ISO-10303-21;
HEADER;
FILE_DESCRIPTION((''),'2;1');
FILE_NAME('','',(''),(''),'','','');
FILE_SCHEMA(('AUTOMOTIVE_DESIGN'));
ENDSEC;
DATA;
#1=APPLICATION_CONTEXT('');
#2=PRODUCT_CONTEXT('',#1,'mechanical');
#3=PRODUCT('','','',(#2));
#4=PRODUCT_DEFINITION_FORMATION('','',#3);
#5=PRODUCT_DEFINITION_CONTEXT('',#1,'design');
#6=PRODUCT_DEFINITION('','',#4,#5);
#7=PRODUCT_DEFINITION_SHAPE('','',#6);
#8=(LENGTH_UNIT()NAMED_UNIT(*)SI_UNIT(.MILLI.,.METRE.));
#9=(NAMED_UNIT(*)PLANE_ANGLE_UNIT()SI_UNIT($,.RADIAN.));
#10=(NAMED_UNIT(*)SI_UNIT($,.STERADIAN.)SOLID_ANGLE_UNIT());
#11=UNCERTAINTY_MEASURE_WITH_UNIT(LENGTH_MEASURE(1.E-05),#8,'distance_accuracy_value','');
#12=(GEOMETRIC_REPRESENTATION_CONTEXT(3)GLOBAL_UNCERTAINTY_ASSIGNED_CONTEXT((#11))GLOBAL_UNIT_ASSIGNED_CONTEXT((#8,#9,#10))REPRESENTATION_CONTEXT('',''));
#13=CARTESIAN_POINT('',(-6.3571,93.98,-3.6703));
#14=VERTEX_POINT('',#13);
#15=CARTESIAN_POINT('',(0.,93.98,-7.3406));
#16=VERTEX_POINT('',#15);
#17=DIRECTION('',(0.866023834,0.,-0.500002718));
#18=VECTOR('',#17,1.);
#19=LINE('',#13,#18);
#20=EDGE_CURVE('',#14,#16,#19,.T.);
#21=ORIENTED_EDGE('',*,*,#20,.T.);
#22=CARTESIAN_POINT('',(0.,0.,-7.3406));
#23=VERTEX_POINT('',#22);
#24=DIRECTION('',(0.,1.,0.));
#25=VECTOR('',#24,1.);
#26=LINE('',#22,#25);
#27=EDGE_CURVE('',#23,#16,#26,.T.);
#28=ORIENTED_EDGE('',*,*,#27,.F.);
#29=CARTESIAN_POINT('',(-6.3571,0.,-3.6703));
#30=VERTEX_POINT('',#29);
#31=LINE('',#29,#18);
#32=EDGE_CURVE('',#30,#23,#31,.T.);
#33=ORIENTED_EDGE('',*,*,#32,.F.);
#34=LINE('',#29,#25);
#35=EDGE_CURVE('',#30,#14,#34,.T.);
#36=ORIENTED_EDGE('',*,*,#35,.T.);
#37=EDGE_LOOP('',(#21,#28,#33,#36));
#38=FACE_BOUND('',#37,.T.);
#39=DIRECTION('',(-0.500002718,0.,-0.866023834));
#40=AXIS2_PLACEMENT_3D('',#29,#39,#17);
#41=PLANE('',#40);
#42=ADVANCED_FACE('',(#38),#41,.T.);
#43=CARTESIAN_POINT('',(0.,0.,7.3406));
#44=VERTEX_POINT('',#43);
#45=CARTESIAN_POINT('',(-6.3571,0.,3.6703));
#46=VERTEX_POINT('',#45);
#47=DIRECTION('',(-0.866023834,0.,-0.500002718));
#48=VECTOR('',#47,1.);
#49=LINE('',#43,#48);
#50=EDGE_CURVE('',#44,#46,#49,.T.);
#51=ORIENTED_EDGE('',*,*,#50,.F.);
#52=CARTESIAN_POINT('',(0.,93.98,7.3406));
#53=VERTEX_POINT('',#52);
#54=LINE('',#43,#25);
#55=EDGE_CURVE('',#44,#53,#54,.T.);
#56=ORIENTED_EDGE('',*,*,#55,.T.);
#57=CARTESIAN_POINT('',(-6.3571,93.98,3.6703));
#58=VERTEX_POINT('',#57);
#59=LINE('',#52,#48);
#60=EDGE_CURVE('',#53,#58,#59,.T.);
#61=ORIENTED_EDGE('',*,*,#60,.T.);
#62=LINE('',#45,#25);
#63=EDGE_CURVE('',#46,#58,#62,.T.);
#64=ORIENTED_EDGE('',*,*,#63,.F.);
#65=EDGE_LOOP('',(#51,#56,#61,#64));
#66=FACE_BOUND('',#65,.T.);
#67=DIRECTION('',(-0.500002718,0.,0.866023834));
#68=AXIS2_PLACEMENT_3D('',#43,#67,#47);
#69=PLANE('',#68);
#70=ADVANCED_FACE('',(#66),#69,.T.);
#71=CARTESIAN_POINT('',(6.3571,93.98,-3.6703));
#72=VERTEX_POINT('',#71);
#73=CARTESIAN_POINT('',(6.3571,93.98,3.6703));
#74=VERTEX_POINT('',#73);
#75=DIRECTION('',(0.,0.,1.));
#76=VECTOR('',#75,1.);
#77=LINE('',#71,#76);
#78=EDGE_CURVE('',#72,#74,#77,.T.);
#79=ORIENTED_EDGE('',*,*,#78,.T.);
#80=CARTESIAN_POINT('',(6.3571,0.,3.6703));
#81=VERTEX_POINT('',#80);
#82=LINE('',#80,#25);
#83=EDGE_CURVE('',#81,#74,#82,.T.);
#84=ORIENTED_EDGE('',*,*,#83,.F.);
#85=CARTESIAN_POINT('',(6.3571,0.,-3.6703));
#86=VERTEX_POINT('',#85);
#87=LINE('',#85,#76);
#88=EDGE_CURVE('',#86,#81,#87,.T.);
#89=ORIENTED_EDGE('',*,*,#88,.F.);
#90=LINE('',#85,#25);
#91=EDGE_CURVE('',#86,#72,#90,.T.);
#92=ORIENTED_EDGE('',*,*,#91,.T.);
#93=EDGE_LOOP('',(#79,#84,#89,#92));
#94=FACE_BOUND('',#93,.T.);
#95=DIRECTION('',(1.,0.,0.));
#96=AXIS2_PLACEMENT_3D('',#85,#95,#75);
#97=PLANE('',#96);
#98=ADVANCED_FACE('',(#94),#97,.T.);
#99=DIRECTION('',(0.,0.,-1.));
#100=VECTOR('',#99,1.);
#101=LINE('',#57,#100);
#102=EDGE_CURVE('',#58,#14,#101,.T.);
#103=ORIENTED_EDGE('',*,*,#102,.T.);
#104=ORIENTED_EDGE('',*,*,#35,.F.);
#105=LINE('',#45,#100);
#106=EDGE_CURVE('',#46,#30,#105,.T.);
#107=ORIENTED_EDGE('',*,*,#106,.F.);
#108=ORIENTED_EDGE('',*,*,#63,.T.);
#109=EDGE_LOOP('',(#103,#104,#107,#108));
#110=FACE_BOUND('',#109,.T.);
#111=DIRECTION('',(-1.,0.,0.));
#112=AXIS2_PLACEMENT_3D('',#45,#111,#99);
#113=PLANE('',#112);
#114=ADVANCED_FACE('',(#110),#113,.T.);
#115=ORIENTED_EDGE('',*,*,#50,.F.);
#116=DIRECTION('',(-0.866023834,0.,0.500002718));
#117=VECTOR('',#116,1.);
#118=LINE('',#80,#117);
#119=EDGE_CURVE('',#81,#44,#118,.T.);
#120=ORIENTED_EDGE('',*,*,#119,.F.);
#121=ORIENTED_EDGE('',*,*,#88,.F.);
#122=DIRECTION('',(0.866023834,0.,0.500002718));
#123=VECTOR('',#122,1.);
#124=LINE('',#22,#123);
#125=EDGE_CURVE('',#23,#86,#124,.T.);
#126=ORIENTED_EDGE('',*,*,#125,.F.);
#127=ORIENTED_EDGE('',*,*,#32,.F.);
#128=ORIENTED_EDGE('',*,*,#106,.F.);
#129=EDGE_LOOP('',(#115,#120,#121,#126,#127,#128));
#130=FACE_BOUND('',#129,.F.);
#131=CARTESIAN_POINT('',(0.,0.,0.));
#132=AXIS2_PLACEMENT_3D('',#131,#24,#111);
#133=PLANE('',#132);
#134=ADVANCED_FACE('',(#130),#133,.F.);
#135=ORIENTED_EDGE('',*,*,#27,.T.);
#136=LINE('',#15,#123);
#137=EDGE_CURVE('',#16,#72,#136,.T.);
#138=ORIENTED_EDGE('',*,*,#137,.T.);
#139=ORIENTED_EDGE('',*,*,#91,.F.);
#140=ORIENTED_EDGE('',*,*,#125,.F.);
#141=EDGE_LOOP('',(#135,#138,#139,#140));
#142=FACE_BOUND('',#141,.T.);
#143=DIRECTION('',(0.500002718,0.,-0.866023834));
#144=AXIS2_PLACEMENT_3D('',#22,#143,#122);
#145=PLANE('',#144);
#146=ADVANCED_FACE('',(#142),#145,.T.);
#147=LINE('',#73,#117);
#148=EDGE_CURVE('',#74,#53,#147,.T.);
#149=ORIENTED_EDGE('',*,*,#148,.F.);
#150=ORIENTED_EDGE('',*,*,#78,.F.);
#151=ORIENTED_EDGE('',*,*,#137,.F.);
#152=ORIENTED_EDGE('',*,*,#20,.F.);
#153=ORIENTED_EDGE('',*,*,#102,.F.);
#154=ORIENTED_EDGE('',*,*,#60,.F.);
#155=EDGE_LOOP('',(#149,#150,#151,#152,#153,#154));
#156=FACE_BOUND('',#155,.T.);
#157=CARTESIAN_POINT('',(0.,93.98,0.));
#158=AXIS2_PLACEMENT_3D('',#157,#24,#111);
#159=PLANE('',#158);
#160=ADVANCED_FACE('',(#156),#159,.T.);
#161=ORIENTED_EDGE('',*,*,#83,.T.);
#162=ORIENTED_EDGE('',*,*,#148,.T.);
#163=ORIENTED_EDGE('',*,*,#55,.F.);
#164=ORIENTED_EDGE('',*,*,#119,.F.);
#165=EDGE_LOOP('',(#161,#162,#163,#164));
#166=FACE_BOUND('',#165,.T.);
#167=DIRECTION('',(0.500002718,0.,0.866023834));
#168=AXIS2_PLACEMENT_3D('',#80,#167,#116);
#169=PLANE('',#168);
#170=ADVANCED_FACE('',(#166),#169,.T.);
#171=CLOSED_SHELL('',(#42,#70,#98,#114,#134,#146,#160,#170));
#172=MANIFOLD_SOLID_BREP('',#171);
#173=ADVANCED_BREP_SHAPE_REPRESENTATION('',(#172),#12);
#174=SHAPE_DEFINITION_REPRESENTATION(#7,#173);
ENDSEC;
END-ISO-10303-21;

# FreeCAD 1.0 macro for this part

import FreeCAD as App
import Part
import Sketcher
from FreeCAD import Vector
Q = App.Units.Quantity

doc = App.newDocument("Part")
params = doc.addObject("Spreadsheet::Sheet", "Params")
for row, (alias, value) in enumerate([
    ("sketch1_height", "0.289 in"),
    ("sketch1_length", "0.289 in"),
    ("pad1_length", "3.7 in"),
], start=1):
    params.set(f"A{row}", alias)
    params.set(f"B{row}", "=" + value)
    params.setAlias(f"B{row}", alias)

body = doc.addObject("PartDesign::Body", "Body")

sketch1 = doc.addObject("Sketcher::SketchObject", "Sketch")
body.addObject(sketch1)
sketch1.AttachmentSupport = (doc.XZ_Plane, [""])
sketch1.MapMode = "FlatFace"
sketch1.addGeometry(Part.LineSegment(Vector(6, -4, 0), Vector(0, -7, 0)), False)
sketch1.addGeometry(Part.LineSegment(Vector(0, -7, 0), Vector(-6, -4, 0)), False)
sketch1.addGeometry(Part.LineSegment(Vector(-6, -4, 0), Vector(-6, 4, 0)), False)
sketch1.addGeometry(Part.LineSegment(Vector(-6, 4, 0), Vector(0, 7, 0)), False)
sketch1.addGeometry(Part.LineSegment(Vector(0, 7, 0), Vector(6, 4, 0)), False)
sketch1.addGeometry(Part.LineSegment(Vector(6, 4, 0), Vector(6, -4, 0)), False)
sketch1.addConstraint(Sketcher.Constraint("Coincident", 0, 2, 1, 1))
sketch1.addConstraint(Sketcher.Constraint("Coincident", 1, 2, 2, 1))
sketch1.addConstraint(Sketcher.Constraint("Coincident", 2, 2, 3, 1))
sketch1.addConstraint(Sketcher.Constraint("Coincident", 3, 2, 4, 1))
sketch1.addConstraint(Sketcher.Constraint("Coincident", 4, 2, 5, 1))
sketch1.addConstraint(Sketcher.Constraint("Coincident", 5, 2, 0, 1))
sketch1.addConstraint(Sketcher.Constraint("Vertical", 2))
sketch1.addConstraint(Sketcher.Constraint("Vertical", 5))
sketch1.addConstraint(Sketcher.Constraint("Symmetric", 0, 2, 3, 2, -1, 1))
sketch1.addConstraint(Sketcher.Constraint("Symmetric", 1, 2, 4, 2, -1, 1))
sketch1.addConstraint(Sketcher.Constraint("PointOnObject", 0, 2, -2))
sketch1.addConstraint(Sketcher.Constraint("Parallel", 0, 3))
sketch1.addConstraint(Sketcher.Constraint("Horizontal", 2, 2, 4, 2))
sketch1.addConstraint(Sketcher.Constraint("DistanceY", 2, 1, 2, 2, Q("0.289 in")))
sketch1.addConstraint(Sketcher.Constraint("Distance", 0, Q("0.289 in")))
sketch1.addConstraint(Sketcher.Constraint("DistanceY", 0, 2, -1, 1, Q("0.289 in")))
sketch1.setExpression("Constraints[13]", "Params.sketch1_height")
sketch1.setExpression("Constraints[14]", "Params.sketch1_length")
pad1 = doc.addObject("PartDesign::Pad", "Pad")
body.addObject(pad1)
pad1.Profile = sketch1
pad1.setExpression("Length", "Params.pad1_length")
pad1.Reversed = True

doc.recompute()
